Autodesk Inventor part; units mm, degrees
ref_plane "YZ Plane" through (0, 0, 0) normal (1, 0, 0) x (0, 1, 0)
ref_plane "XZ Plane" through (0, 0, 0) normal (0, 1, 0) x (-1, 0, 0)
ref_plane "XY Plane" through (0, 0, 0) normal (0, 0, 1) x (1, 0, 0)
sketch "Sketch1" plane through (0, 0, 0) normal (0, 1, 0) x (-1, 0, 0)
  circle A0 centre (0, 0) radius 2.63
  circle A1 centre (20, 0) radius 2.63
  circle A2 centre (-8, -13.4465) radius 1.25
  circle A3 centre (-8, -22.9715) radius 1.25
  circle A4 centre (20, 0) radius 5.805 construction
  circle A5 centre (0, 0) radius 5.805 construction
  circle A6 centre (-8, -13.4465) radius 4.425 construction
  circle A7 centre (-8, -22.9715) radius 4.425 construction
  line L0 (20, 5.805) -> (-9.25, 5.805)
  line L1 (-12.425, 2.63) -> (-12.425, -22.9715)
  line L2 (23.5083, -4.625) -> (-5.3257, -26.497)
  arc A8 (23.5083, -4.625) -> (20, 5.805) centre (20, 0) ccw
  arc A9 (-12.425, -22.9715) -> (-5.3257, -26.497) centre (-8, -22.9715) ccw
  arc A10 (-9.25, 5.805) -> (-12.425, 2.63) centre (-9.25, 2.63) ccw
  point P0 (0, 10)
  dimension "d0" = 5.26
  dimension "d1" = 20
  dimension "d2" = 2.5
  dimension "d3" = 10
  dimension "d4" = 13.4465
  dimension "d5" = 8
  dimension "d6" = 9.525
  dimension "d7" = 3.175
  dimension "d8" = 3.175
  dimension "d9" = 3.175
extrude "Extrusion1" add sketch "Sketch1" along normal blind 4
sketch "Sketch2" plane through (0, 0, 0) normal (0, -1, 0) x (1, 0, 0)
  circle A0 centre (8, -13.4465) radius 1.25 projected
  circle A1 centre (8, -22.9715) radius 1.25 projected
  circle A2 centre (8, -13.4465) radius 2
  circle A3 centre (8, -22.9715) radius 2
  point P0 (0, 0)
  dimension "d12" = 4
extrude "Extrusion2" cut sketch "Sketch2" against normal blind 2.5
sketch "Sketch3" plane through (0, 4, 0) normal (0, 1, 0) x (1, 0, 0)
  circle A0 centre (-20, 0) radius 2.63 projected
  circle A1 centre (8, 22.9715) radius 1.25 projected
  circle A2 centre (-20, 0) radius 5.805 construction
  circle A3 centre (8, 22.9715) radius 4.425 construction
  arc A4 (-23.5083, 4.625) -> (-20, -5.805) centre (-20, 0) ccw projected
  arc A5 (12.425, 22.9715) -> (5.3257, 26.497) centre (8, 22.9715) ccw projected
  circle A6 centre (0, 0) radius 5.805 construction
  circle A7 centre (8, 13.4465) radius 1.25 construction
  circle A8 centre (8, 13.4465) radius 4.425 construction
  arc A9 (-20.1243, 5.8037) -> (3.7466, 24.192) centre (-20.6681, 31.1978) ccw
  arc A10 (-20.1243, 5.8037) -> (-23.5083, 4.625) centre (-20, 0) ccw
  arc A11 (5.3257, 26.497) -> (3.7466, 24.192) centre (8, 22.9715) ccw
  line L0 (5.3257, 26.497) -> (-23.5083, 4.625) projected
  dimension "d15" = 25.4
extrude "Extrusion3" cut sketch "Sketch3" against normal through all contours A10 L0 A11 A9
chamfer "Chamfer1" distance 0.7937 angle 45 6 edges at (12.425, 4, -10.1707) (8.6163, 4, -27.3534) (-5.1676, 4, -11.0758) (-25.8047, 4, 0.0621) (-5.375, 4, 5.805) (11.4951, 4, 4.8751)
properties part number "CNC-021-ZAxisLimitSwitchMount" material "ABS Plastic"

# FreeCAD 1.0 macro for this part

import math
import FreeCAD as App
import Part
import Sketcher

V = App.Vector
Q = App.Units.Quantity


def edges_at(feature, points):
    """Names of the edges that pass closest to the given points."""
    edges = feature.Shape.Edges
    near = lambda p: min(range(len(edges)), key=lambda i: edges[i].distToShape(Part.Vertex(*p))[0])
    return sorted({f"Edge{near(p) + 1}" for p in points})

doc = App.newDocument("Part")
body = doc.addObject("PartDesign::Body", "Body")

sketch1 = doc.addObject("Sketcher::SketchObject", "Sketch")
body.addObject(sketch1)
sketch1.AttachmentSupport = (doc.XZ_Plane, [""])
sketch1.MapMode = "FlatFace"
sketch1.addGeometry([
    Part.ArcOfCircle(Part.Circle(V(-20, 0, 0), V(0, 0, 1), 5.8), math.radians(90), math.radians(233)),
    Part.LineSegment(V(-20, 5.8, 0), V(9.2, 5.8, 0)),
    Part.ArcOfCircle(Part.Circle(V(9.2, 2.6, 0), V(0, 0, 1), 3.2), math.radians(0), math.radians(90)),
    Part.LineSegment(V(12.4, 2.6, 0), V(12.4, -23, 0)),
    Part.ArcOfCircle(Part.Circle(V(8, -23, 0), V(0, 0, 1), 4.4), math.radians(-127), math.radians(0)),
    Part.LineSegment(V(5.3, -26.5, 0), V(-23.5, -4.6, 0)),
    Part.Circle(V(8, -23, 0), V(0, 0, 1), 1.2),
    Part.Circle(V(8, -13.4, 0), V(0, 0, 1), 1.2),
    Part.Circle(V(0, 0, 0), V(0, 0, 1), 2.6),
    Part.Circle(V(-20, 0, 0), V(0, 0, 1), 2.6),
], False)
sketch1.addConstraint([
    Sketcher.Constraint("Tangent", 0, 1, 1, 1),
    Sketcher.Constraint("Tangent", 1, 2, 2, 2),
    Sketcher.Constraint("Tangent", 2, 1, 3, 1),
    Sketcher.Constraint("Tangent", 3, 2, 4, 2),
    Sketcher.Constraint("Tangent", 4, 1, 5, 1),
    Sketcher.Constraint("Tangent", 5, 2, 0, 2),
    Sketcher.Constraint("Horizontal", 1),
    Sketcher.Constraint("Vertical", 3),
    Sketcher.Constraint("Coincident", 8, 3, -1, 1),
    Sketcher.Constraint("Coincident", 6, 3, 4, 3),
    Sketcher.Constraint("Coincident", 9, 3, 0, 3),
    Sketcher.Constraint("Equal", 6, 7),
    Sketcher.Constraint("Equal", 8, 9),
    Sketcher.Constraint("PointOnObject", 0, 3, -1),
    Sketcher.Constraint("Vertical", 6, 3, 7, 3),
    Sketcher.Constraint("Diameter", 6, Q("2.5 mm")),
    Sketcher.Constraint("Diameter", 8, Q("5.26 mm")),
    Sketcher.Constraint("DistanceX", 0, 3, -1, 1, Q("20 mm")),
    Sketcher.Constraint("DistanceX", -1, 1, 4, 3, Q("8 mm")),
    Sketcher.Constraint("Radius", 2, Q("3.175 mm")),
    Sketcher.Constraint("Radius", 0, Q("5.805 mm")),
    Sketcher.Constraint("Radius", 4, Q("4.425 mm")),
    Sketcher.Constraint("DistanceY", 4, 3, 7, 3, Q("9.525 mm")),
    Sketcher.Constraint("DistanceY", 7, 3, -1, 1, Q("13.4465 mm")),
])
pad1 = doc.addObject("PartDesign::Pad", "Pad")
body.addObject(pad1)
pad1.Profile = sketch1
pad1.Length = 4
pad1.Reversed = True

sketch2 = doc.addObject("Sketcher::SketchObject", "Sketch001")
body.addObject(sketch2)
sketch2.AttachmentSupport = (doc.XZ_Plane, [""])
sketch2.MapMode = "FlatFace"
sketch2.addGeometry([
    Part.Circle(V(8, -13.4, 0), V(0, 0, 1), 2),
    Part.Circle(V(8, -13.4, 0), V(0, 0, 1), 1.2),
    Part.Circle(V(8, -23, 0), V(0, 0, 1), 2),
    Part.Circle(V(8, -23, 0), V(0, 0, 1), 1.2),
], False)
sketch2.addConstraint([
    Sketcher.Constraint("Coincident", 1, 3, 0, 3),
    Sketcher.Constraint("Coincident", 3, 3, 2, 3),
    Sketcher.Constraint("Equal", 0, 2),
    Sketcher.Constraint("Equal", 1, 3),
    Sketcher.Constraint("Vertical", 1, 3, 2, 3),
    Sketcher.Constraint("Diameter", 0, Q("4 mm")),
    Sketcher.Constraint("Diameter", 1, Q("2.5 mm")),
    Sketcher.Constraint("DistanceX", -1, 1, 0, 3, Q("8 mm")),
    Sketcher.Constraint("DistanceY", 2, 3, 0, 3, Q("9.525 mm")),
    Sketcher.Constraint("DistanceY", 0, 3, -1, 1, Q("13.4465 mm")),
])
pocket1 = doc.addObject("PartDesign::Pocket", "Pocket")
body.addObject(pocket1)
pocket1.Profile = sketch2
pocket1.Length = 2.5

sketch3 = doc.addObject("Sketcher::SketchObject", "Sketch002")
body.addObject(sketch3)
sketch3.AttachmentSupport = (doc.XZ_Plane, [""])
sketch3.MapMode = "FlatFace"
sketch3.AttachmentOffset = App.Placement(V(0, 0, -4), App.Rotation())
sketch3.addGeometry([
    Part.ArcOfCircle(Part.Circle(V(-20, 0, 0), V(0, 0, 1), 5.8), math.radians(-127), math.radians(-91)),
    Part.ArcOfCircle(Part.Circle(V(-20.7, -31.2, 0), V(0, 0, 1), 25.4), math.radians(16), math.radians(89)),
    Part.ArcOfCircle(Part.Circle(V(8, -23, 0), V(0, 0, 1), 4.4), math.radians(-164), math.radians(-127)),
    Part.LineSegment(V(5.3, -26.5, 0), V(-23.5, -4.6, 0)),
], False)
sketch3.addConstraint([
    Sketcher.Constraint("Tangent", 0, 2, 1, 2),
    Sketcher.Constraint("Tangent", 1, 1, 2, 1),
    Sketcher.Constraint("Tangent", 2, 2, 3, 1),
    Sketcher.Constraint("Tangent", 3, 2, 0, 1),
    Sketcher.Constraint("PointOnObject", 0, 3, -1),
    Sketcher.Constraint("Radius", 1, Q("25.4 mm")),
    Sketcher.Constraint("DistanceX", 0, 3, -1, 1, Q("20 mm")),
    Sketcher.Constraint("DistanceX", -1, 1, 2, 3, Q("8 mm")),
    Sketcher.Constraint("Radius", 0, Q("5.805 mm")),
    Sketcher.Constraint("Radius", 2, Q("4.425 mm")),
    Sketcher.Constraint("DistanceX", 0, 2, 2, 2, Q("25.45 mm")),
])
pocket2 = doc.addObject("PartDesign::Pocket", "Pocket001")
body.addObject(pocket2)
pocket2.Profile = sketch3
pocket2.Type = "ThroughAll"
pocket2.Reversed = True
doc.recompute()

chamfer = doc.addObject("PartDesign::Chamfer", "Chamfer")
body.addObject(chamfer)
chamfer.Base = (pocket2, edges_at(pocket2, [
    (12.425, 4, -10.171),
    (8.616, 4, -27.353),
    (-5.168, 4, -11.076),
    (-25.805, 4, 0.062),
    (-5.375, 4, 5.805),
    (11.495, 4, 4.875),
]))
chamfer.Size = 0.7937

doc.recompute()
